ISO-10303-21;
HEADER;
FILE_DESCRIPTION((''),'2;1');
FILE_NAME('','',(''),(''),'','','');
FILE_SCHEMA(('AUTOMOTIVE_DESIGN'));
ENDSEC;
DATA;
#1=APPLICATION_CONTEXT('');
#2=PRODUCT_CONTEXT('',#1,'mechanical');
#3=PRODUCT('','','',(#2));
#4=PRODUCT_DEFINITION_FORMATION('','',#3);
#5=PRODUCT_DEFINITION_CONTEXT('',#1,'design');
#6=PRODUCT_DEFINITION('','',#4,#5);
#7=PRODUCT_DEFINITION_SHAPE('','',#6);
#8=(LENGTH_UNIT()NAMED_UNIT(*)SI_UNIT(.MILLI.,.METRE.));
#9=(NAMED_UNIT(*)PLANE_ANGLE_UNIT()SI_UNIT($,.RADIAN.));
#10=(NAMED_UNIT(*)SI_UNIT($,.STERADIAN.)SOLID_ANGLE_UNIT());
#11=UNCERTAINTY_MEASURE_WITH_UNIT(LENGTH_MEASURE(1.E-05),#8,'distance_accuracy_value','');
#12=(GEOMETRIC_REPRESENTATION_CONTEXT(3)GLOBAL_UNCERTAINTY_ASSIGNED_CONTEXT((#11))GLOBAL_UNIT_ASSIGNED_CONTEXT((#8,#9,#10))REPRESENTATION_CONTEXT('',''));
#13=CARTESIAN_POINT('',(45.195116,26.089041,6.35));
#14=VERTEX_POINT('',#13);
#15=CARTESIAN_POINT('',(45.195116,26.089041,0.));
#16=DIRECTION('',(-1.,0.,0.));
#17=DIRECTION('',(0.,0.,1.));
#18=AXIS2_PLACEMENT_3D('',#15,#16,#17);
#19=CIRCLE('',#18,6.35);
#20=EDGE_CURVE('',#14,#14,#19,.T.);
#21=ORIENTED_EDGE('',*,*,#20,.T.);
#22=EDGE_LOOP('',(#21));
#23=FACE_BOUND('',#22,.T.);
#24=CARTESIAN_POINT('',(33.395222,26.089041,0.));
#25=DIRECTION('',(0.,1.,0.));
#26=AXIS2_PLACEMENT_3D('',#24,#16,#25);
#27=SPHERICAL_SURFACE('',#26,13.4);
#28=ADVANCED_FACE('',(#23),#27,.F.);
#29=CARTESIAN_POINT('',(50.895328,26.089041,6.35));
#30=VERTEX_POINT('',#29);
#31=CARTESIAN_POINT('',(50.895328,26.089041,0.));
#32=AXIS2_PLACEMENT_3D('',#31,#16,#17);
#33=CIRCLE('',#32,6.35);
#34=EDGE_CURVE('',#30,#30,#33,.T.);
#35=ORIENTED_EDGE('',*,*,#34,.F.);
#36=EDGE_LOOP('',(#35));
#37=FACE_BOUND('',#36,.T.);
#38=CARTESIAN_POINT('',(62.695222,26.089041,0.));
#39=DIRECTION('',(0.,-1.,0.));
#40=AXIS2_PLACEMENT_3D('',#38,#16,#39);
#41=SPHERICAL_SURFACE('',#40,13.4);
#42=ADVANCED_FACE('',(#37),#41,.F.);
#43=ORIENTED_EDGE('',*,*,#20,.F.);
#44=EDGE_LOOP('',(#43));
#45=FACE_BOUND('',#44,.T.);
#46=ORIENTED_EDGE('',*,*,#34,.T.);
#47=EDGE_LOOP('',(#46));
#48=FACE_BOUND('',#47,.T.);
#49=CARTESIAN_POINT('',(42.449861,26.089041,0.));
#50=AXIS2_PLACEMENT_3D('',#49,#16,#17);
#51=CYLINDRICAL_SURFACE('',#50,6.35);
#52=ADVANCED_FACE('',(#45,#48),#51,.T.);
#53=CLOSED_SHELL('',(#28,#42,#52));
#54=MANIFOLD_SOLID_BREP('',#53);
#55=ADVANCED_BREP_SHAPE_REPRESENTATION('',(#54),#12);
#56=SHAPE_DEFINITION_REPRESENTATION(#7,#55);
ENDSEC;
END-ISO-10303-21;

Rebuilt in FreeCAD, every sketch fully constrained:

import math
import FreeCAD as App
import Part
import Sketcher

doc = App.newDocument("Part")
body = doc.addObject("PartDesign::Body", "Body")

sketch1 = body.newObject("Sketcher::SketchObject", "Sketch")
sketch1.AttachmentSupport = (doc.getObject("XY_Plane"), [""])
sketch1.MapMode = "FlatFace"
sketch1.addGeometry([
    Part.LineSegment(App.Vector(46.8, 26.1, 0), App.Vector(49.3, 26.1, 0)),
    Part.ArcOfCircle(Part.Circle(App.Vector(62.7, 26.1, 0), App.Vector(0, 0, 1), 13.4), math.radians(152), math.radians(180)),
    Part.LineSegment(App.Vector(50.9, 32.4, 0), App.Vector(45.2, 32.4, 0)),
    Part.ArcOfCircle(Part.Circle(App.Vector(33.4, 26.1, 0), App.Vector(0, 0, 1), 13.4), math.radians(0), math.radians(28)),
], False)
sketch1.addGeometry(Part.LineSegment(App.Vector(33.4, 26.1, 0), App.Vector(62.7, 26.1, 0)), True)
sketch1.addConstraint([
    Sketcher.Constraint("Coincident", 0, 2, 1, 2),
    Sketcher.Constraint("Coincident", 1, 1, 2, 1),
    Sketcher.Constraint("Coincident", 2, 2, 3, 2),
    Sketcher.Constraint("Coincident", 3, 1, 0, 1),
    Sketcher.Constraint("Horizontal", 0),
    Sketcher.Constraint("Horizontal", 2),
    Sketcher.Constraint("Horizontal", 4),
    Sketcher.Constraint("Coincident", 4, 1, 3, 3),
    Sketcher.Constraint("Coincident", 4, 2, 1, 3),
    Sketcher.Constraint("Equal", 1, 3),
    Sketcher.Constraint("Horizontal", 3, 3, 0, 2),
    Sketcher.Constraint("Radius", 1, 13.4),
    Sketcher.Constraint("DistanceX", 0, 1, 0, 2, 2.5),
    Sketcher.Constraint("DistanceY", 0, 2, 1, 1, 6.35),
    Sketcher.Constraint("DistanceX", -1, 1, 1, 3, 62.695222),
    Sketcher.Constraint("DistanceY", -1, 1, 1, 3, 26.089041),
])
revolution = body.newObject("PartDesign::Revolution", "Revolution")
revolution.Profile = sketch1
revolution.ReferenceAxis = (sketch1, ["Axis0"])
revolution.Angle = 360

doc.recompute()
